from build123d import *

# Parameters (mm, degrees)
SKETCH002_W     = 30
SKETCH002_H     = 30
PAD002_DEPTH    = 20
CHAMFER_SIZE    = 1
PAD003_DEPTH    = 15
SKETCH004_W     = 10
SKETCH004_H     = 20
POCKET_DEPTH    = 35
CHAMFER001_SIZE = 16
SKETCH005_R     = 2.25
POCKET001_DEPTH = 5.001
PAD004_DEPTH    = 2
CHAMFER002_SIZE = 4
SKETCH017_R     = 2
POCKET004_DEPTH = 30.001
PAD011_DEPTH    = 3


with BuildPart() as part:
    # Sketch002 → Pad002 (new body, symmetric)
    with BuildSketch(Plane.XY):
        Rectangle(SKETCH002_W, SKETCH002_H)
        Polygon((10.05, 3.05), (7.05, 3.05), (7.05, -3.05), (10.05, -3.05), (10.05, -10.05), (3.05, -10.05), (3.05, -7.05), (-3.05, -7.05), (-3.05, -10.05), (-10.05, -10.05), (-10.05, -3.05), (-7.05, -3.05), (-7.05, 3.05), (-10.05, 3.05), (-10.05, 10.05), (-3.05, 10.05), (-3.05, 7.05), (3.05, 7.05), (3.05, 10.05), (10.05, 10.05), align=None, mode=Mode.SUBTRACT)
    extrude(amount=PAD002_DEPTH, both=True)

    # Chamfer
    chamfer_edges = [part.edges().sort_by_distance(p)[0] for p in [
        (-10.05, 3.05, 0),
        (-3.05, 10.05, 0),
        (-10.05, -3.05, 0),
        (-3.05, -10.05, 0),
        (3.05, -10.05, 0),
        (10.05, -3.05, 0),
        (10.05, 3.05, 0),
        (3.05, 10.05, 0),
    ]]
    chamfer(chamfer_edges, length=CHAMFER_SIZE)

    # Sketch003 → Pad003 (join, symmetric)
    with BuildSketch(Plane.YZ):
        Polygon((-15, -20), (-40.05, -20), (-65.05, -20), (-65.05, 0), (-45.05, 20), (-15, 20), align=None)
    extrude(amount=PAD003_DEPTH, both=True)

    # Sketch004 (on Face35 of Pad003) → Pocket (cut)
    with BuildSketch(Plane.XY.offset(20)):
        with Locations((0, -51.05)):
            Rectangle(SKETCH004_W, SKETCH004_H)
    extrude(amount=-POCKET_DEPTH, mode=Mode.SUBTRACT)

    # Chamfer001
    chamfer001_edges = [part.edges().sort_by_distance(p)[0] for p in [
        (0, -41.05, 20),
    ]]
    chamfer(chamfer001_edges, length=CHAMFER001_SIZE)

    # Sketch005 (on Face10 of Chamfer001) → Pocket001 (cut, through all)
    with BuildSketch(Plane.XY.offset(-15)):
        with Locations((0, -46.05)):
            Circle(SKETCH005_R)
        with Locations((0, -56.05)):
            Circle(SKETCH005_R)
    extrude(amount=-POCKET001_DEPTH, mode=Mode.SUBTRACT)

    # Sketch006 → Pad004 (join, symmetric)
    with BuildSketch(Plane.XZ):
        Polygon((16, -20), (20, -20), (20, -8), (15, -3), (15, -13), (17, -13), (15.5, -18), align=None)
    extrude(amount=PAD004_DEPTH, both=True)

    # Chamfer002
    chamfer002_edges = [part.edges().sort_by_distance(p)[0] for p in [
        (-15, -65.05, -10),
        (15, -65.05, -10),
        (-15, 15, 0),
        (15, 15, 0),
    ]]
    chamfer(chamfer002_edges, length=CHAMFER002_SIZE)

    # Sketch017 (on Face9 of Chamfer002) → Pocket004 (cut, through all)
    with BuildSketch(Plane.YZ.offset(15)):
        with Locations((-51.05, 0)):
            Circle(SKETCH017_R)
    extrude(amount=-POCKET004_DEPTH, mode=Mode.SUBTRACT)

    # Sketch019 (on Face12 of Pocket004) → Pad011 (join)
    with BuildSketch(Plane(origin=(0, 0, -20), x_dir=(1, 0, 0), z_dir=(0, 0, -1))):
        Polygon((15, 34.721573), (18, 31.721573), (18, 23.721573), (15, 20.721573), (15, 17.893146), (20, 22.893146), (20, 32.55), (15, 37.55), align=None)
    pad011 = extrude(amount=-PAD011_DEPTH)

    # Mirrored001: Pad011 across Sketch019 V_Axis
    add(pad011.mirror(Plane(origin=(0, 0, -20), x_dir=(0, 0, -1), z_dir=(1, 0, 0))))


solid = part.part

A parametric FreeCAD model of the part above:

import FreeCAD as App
import Part
import Sketcher

V = App.Vector
Q = App.Units.Quantity


def edges_at(feature, points):
    """Names of the edges that pass closest to the given points."""
    edges = feature.Shape.Edges
    near = lambda p: min(range(len(edges)), key=lambda i: edges[i].distToShape(Part.Vertex(*p))[0])
    return sorted({f"Edge{near(p) + 1}" for p in points})


def add_polygon(sketch, points):
    """Adds a closed chain of lines whose ends are joined by coincident constraints."""
    first, n = sketch.GeometryCount, len(points)
    for a, b in zip(points, points[1:] + points[:1]):
        sketch.addGeometry(Part.LineSegment(App.Vector(*a, 0), App.Vector(*b, 0)), False)
    for i in range(n):
        sketch.addConstraint(Sketcher.Constraint("Coincident", first + i, 2, first + (i + 1) % n, 1))

doc = App.newDocument("Part")
body = doc.addObject("PartDesign::Body", "Body")

sketch1 = doc.addObject("Sketcher::SketchObject", "Sketch")
body.addObject(sketch1)
sketch1.AttachmentSupport = (doc.XY_Plane, [""])
sketch1.MapMode = "FlatFace"
add_polygon(sketch1, [(-15, 15), (-15, -15), (15, -15), (15, 15)])
add_polygon(sketch1, [(10.1, 10.1), (10.1, 3), (7, 3), (7, -3), (10.1, -3), (10.1, -10.1), (3, -10.1), (3, -7), (-3, -7), (-3, -10.1), (-10.1, -10.1), (-10.1, -3), (-7, -3), (-7, 3), (-10.1, 3), (-10.1, 10.1), (-3, 10.1), (-3, 7), (3, 7), (3, 10.1)])
sketch1.addConstraint([
    Sketcher.Constraint("Vertical", 0),
    Sketcher.Constraint("Horizontal", 1),
    Sketcher.Constraint("Vertical", 2),
    Sketcher.Constraint("Horizontal", 3),
    Sketcher.Constraint("Vertical", 4),
    Sketcher.Constraint("Horizontal", 5),
    Sketcher.Constraint("Vertical", 6),
    Sketcher.Constraint("Horizontal", 7),
    Sketcher.Constraint("Vertical", 8),
    Sketcher.Constraint("Horizontal", 9),
    Sketcher.Constraint("Vertical", 10),
    Sketcher.Constraint("Horizontal", 11),
    Sketcher.Constraint("Vertical", 12),
    Sketcher.Constraint("Horizontal", 13),
    Sketcher.Constraint("Vertical", 14),
    Sketcher.Constraint("Horizontal", 15),
    Sketcher.Constraint("Vertical", 16),
    Sketcher.Constraint("Horizontal", 17),
    Sketcher.Constraint("Vertical", 18),
    Sketcher.Constraint("Horizontal", 19),
    Sketcher.Constraint("Vertical", 20),
    Sketcher.Constraint("Horizontal", 21),
    Sketcher.Constraint("Vertical", 22),
    Sketcher.Constraint("Horizontal", 23),
    Sketcher.Constraint("Symmetric", 0, 2, 2, 2, -1, 1),
    Sketcher.Constraint("Symmetric", 4, 2, 14, 2, -1, 1),
    Sketcher.Constraint("Symmetric", 6, 2, 16, 2, -1, 1),
    Sketcher.Constraint("Symmetric", 8, 2, 18, 2, -1, 1),
    Sketcher.Constraint("Symmetric", 10, 2, 20, 2, -1, 1),
    Sketcher.Constraint("Symmetric", 12, 2, 22, 2, -1, 1),
    Sketcher.Constraint("Symmetric", 9, 2, 12, 2, -2),
    Sketcher.Constraint("Symmetric", 7, 2, 14, 2, -2),
    Sketcher.Constraint("Equal", 3, 0),
    Sketcher.Constraint("Equal", 23, 4),
    Sketcher.Constraint("Equal", 21, 6),
    Sketcher.Constraint("Equal", 17, 10),
    Sketcher.Constraint("DistanceX", 1, 1, 1, 2, Q("30 mm")),
    Sketcher.Constraint("DistanceX", 5, 2, 5, 1, Q("3 mm")),
    Sketcher.Constraint("DistanceX", 9, 2, 9, 1, Q("7 mm")),
    Sketcher.Constraint("DistanceX", 11, 2, 11, 1, Q("6.1 mm")),
])
pad1 = doc.addObject("PartDesign::Pad", "Pad")
body.addObject(pad1)
pad1.Profile = sketch1
pad1.Length = 40
pad1.Midplane = True
doc.recompute()

chamfer = doc.addObject("PartDesign::Chamfer", "Chamfer")
body.addObject(chamfer)
chamfer.Base = (pad1, edges_at(pad1, [
    (-10.05, 3.05, 0),
    (-3.05, 10.05, 0),
    (-10.05, -3.05, 0),
    (-3.05, -10.05, 0),
    (3.05, -10.05, 0),
    (10.05, -3.05, 0),
    (10.05, 3.05, 0),
    (3.05, 10.05, 0),
]))
chamfer.Size = 1

sketch2 = doc.addObject("Sketcher::SketchObject", "Sketch001")
body.addObject(sketch2)
sketch2.AttachmentSupport = (doc.YZ_Plane, [""])
sketch2.MapMode = "FlatFace"
add_polygon(sketch2, [(-65, -20), (-15, -20), (-15, 20), (-45, 20), (-65, 0)])
sketch2.addConstraint([
    Sketcher.Constraint("Horizontal", 0),
    Sketcher.Constraint("Vertical", 1),
    Sketcher.Constraint("Horizontal", 2),
    Sketcher.Constraint("Vertical", 4),
    Sketcher.Constraint("PointOnObject", 3, 2, -1),
    Sketcher.Constraint("DistanceY", 1, 1, 1, 2, Q("40 mm")),
    Sketcher.Constraint("DistanceY", 4, 2, 4, 1, Q("20 mm")),
    Sketcher.Constraint("Angle", 3, Q("-135 deg")),
    Sketcher.Constraint("DistanceX", 0, 2, -1, 1, Q("15 mm")),
    Sketcher.Constraint("DistanceX", 0, 1, 0, 2, Q("50.05 mm")),
])
pad2 = doc.addObject("PartDesign::Pad", "Pad001")
body.addObject(pad2)
pad2.Profile = sketch2
pad2.Length = 30
pad2.Midplane = True

sketch3 = doc.addObject("Sketcher::SketchObject", "Sketch002")
body.addObject(sketch3)
sketch3.AttachmentSupport = (doc.XY_Plane, [""])
sketch3.MapMode = "FlatFace"
sketch3.AttachmentOffset = App.Placement(V(0, 0, 20), App.Rotation())
add_polygon(sketch3, [(-5, -41), (-5, -61), (5, -61), (5, -41)])
sketch3.addConstraint([
    Sketcher.Constraint("Vertical", 0),
    Sketcher.Constraint("Horizontal", 1),
    Sketcher.Constraint("Vertical", 2),
    Sketcher.Constraint("Horizontal", 3),
    Sketcher.Constraint("DistanceX", 1, 1, 1, 2, Q("10 mm")),
    Sketcher.Constraint("DistanceY", 0, 2, 0, 1, Q("20 mm")),
    Sketcher.Constraint("DistanceX", 0, 2, -1, 1, Q("5 mm")),
    Sketcher.Constraint("DistanceY", 0, 2, -1, 1, Q("61.05 mm")),
])
pocket1 = doc.addObject("PartDesign::Pocket", "Pocket")
body.addObject(pocket1)
pocket1.Profile = sketch3
pocket1.Length = 35
doc.recompute()

chamfer2 = doc.addObject("PartDesign::Chamfer", "Chamfer001")
body.addObject(chamfer2)
chamfer2.Base = (pocket1, edges_at(pocket1, [(0, -41.05, 20)]))
chamfer2.Size = 16

sketch4 = doc.addObject("Sketcher::SketchObject", "Sketch003")
body.addObject(sketch4)
sketch4.AttachmentSupport = (doc.XY_Plane, [""])
sketch4.MapMode = "FlatFace"
sketch4.AttachmentOffset = App.Placement(V(0, 0, -15), App.Rotation())
sketch4.addGeometry([
    Part.Circle(V(0, -46, 0), V(0, 0, 1), 2.2),
    Part.Circle(V(0, -56, 0), V(0, 0, 1), 2.2),
], False)
sketch4.addConstraint([
    Sketcher.Constraint("Equal", 0, 1),
    Sketcher.Constraint("PointOnObject", 0, 3, -2),
    Sketcher.Constraint("PointOnObject", 1, 3, -2),
    Sketcher.Constraint("Diameter", 0, Q("4.5 mm")),
    Sketcher.Constraint("DistanceY", 1, 3, 0, 3, Q("10 mm")),
    Sketcher.Constraint("DistanceY", 0, 3, -1, 1, Q("46.05 mm")),
])
pocket2 = doc.addObject("PartDesign::Pocket", "Pocket001")
body.addObject(pocket2)
pocket2.Profile = sketch4
pocket2.Type = "ThroughAll"

sketch5 = doc.addObject("Sketcher::SketchObject", "Sketch004")
body.addObject(sketch5)
sketch5.AttachmentSupport = (doc.XZ_Plane, [""])
sketch5.MapMode = "FlatFace"
add_polygon(sketch5, [(16, -20), (20, -20), (20, -8), (15, -3), (15, -13), (17, -13), (15.5, -18)])
sketch5.addConstraint([
    Sketcher.Constraint("Horizontal", 0),
    Sketcher.Constraint("Vertical", 1),
    Sketcher.Constraint("Vertical", 3),
    Sketcher.Constraint("Horizontal", 4),
    Sketcher.Constraint("DistanceX", 0, 1, 0, 2, Q("4 mm")),
    Sketcher.Constraint("DistanceX", 4, 1, 4, 2, Q("2 mm")),
    Sketcher.Constraint("DistanceY", 1, 1, 1, 2, Q("12 mm")),
    Sketcher.Constraint("DistanceY", 3, 2, 3, 1, Q("10 mm")),
    Sketcher.Constraint("Angle", 2, Q("135 deg")),
    Sketcher.Constraint("DistanceX", -1, 1, 0, 2, Q("20 mm")),
    Sketcher.Constraint("DistanceY", 0, 2, -1, 1, Q("20 mm")),
    Sketcher.Constraint("DistanceX", -1, 1, 2, 2, Q("15 mm")),
    Sketcher.Constraint("DistanceY", 5, 2, -1, 1, Q("18 mm")),
    Sketcher.Constraint("DistanceX", -1, 1, 5, 2, Q("15.5 mm")),
])
pad3 = doc.addObject("PartDesign::Pad", "Pad002")
body.addObject(pad3)
pad3.Profile = sketch5
pad3.Length = 4
pad3.Midplane = True
doc.recompute()

chamfer3 = doc.addObject("PartDesign::Chamfer", "Chamfer002")
body.addObject(chamfer3)
chamfer3.Base = (pad3, edges_at(pad3, [
    (-15, -65.05, -10),
    (15, -65.05, -10),
    (-15, 15, 0),
    (15, 15, 0),
]))
chamfer3.Size = 4

sketch6 = doc.addObject("Sketcher::SketchObject", "Sketch005")
body.addObject(sketch6)
sketch6.AttachmentSupport = (doc.YZ_Plane, [""])
sketch6.MapMode = "FlatFace"
sketch6.AttachmentOffset = App.Placement(V(0, 0, 15), App.Rotation())
sketch6.addGeometry(Part.Circle(V(-51, 0, 0), V(0, 0, 1), 2), False)
sketch6.addConstraint([
    Sketcher.Constraint("PointOnObject", 0, 3, -1),
    Sketcher.Constraint("Diameter", 0, Q("4 mm")),
    Sketcher.Constraint("DistanceX", 0, 3, -1, 1, Q("51.05 mm")),
])
pocket3 = doc.addObject("PartDesign::Pocket", "Pocket002")
body.addObject(pocket3)
pocket3.Profile = sketch6
pocket3.Type = "ThroughAll"

sketch7 = doc.addObject("Sketcher::SketchObject", "Sketch006")
body.addObject(sketch7)
sketch7.AttachmentSupport = (doc.XY_Plane, [""])
sketch7.MapMode = "FlatFace"
sketch7.AttachmentOffset = App.Placement(V(0, 0, -20), App.Rotation())
add_polygon(sketch7, [(15, -34.7), (18, -31.7), (18, -23.7), (15, -20.7), (15, -17.9), (20, -22.9), (20, -32.5), (15, -37.5)])
sketch7.addConstraint([
    Sketcher.Constraint("Vertical", 1),
    Sketcher.Constraint("Vertical", 3),
    Sketcher.Constraint("Vertical", 5),
    Sketcher.Constraint("Vertical", 7),
    Sketcher.Constraint("Perpendicular", 0, 2),
    Sketcher.Constraint("Parallel", 2, 4),
    Sketcher.Constraint("Perpendicular", 4, 6),
    Sketcher.Constraint("Vertical", 3, 2, 6, 2),
    Sketcher.Constraint("Equal", 3, 7),
    Sketcher.Constraint("Equal", 0, 2),
    Sketcher.Constraint("DistanceY", 1, 1, 1, 2, Q("8 mm")),
    Sketcher.Constraint("DistanceX", -1, 1, 0, 2, Q("18 mm")),
    Sketcher.Constraint("DistanceX", -1, 1, 2, 2, Q("15 mm")),
    Sketcher.Constraint("DistanceX", -1, 1, 4, 2, Q("20 mm")),
    Sketcher.Constraint("DistanceY", 5, 2, -1, 1, Q("32.55 mm")),
    Sketcher.Constraint("DistanceY", 3, 1, 3, 2, Q("2.828427 mm")),
])
pad4 = doc.addObject("PartDesign::Pad", "Pad003")
body.addObject(pad4)
pad4.Profile = sketch7
pad4.Length = 3
doc.recompute()

mirrored = doc.addObject("PartDesign::Mirrored", "Mirrored")
body.addObject(mirrored)
mirrored.Originals = [pad4]
mirrored.MirrorPlane = (doc.YZ_Plane, [""])
body.Tip = mirrored

doc.recompute()
